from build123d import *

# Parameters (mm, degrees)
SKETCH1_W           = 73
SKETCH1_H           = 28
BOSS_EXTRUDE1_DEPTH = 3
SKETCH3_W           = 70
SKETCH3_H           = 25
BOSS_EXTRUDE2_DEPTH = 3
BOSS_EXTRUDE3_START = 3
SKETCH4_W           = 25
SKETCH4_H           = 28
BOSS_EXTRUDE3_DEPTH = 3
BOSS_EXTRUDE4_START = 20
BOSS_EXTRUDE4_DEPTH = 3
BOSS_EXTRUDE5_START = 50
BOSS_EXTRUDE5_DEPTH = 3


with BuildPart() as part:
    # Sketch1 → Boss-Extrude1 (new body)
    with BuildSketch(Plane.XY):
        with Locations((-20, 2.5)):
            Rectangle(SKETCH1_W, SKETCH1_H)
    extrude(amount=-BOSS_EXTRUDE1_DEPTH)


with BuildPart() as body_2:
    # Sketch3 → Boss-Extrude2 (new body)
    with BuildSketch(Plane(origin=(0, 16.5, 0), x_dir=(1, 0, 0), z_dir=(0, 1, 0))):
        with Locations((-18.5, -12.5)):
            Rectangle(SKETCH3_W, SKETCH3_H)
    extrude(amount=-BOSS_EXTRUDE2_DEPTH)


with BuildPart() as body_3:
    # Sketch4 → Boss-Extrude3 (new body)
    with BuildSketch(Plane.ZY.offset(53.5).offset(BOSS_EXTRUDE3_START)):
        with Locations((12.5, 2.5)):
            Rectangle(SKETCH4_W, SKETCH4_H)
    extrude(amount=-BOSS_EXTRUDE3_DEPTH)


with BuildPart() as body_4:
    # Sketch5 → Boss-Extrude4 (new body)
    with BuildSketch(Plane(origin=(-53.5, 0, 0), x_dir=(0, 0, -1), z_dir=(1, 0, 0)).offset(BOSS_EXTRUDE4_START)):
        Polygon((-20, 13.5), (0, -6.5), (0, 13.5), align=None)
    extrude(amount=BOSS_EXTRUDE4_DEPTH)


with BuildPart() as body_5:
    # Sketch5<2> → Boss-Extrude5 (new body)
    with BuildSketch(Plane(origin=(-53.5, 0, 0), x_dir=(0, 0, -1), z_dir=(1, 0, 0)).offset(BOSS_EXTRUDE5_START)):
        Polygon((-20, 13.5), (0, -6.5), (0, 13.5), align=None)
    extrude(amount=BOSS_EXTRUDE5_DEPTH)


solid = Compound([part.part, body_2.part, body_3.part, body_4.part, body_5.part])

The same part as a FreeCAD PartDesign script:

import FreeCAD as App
import Part
import Sketcher
from FreeCAD import Vector
Q = App.Units.Quantity

doc = App.newDocument("Part")
params = doc.addObject("Spreadsheet::Sheet", "Params")
for row, (alias, value) in enumerate([
    ("sketch1_width", "73 mm"),
    ("sketch1_height", "28 mm"),
    ("pad1_length", "3 mm"),
    ("sketch2_width", "70 mm"),
    ("sketch2_height", "25 mm"),
    ("pad2_length", "3 mm"),
    ("sketch3_width", "28 mm"),
    ("sketch3_height", "25 mm"),
    ("pad3_length", "3 mm"),
    ("sketch4_width", "20 mm"),
    ("pad4_length", "3 mm"),
    ("sketch5_width", "20 mm"),
    ("pad5_length", "3 mm"),
], start=1):
    params.set(f"A{row}", alias)
    params.set(f"B{row}", "=" + value)
    params.setAlias(f"B{row}", alias)

body = doc.addObject("PartDesign::Body", "Body")

# Sketch on XY plane
sketch1 = doc.addObject("Sketcher::SketchObject", "Sketch")
body.addObject(sketch1)
sketch1.AttachmentSupport = (doc.XY_Plane, [""])
sketch1.MapMode = "FlatFace"
sketch1.addGeometry(Part.LineSegment(Vector(-56, 16, 0), Vector(-56, -12, 0)), False)
sketch1.addGeometry(Part.LineSegment(Vector(-56, -12, 0), Vector(16, -12, 0)), False)
sketch1.addGeometry(Part.LineSegment(Vector(16, -12, 0), Vector(16, 16, 0)), False)
sketch1.addGeometry(Part.LineSegment(Vector(16, 16, 0), Vector(-56, 16, 0)), False)
sketch1.addConstraint(Sketcher.Constraint("Coincident", 0, 2, 1, 1))
sketch1.addConstraint(Sketcher.Constraint("Coincident", 1, 2, 2, 1))
sketch1.addConstraint(Sketcher.Constraint("Coincident", 2, 2, 3, 1))
sketch1.addConstraint(Sketcher.Constraint("Coincident", 3, 2, 0, 1))
sketch1.addConstraint(Sketcher.Constraint("Vertical", 0))
sketch1.addConstraint(Sketcher.Constraint("Horizontal", 1))
sketch1.addConstraint(Sketcher.Constraint("Vertical", 2))
sketch1.addConstraint(Sketcher.Constraint("Horizontal", 3))
sketch1.addConstraint(Sketcher.Constraint("DistanceX", 1, 1, 1, 2, Q("73 mm")))
sketch1.addConstraint(Sketcher.Constraint("DistanceY", 0, 2, 0, 1, Q("28 mm")))
sketch1.addConstraint(Sketcher.Constraint("DistanceX", 0, 2, -1, 1, Q("56.5 mm")))
sketch1.addConstraint(Sketcher.Constraint("DistanceY", 0, 2, -1, 1, Q("11.5 mm")))
sketch1.setExpression("Constraints[8]", "Params.sketch1_width")
sketch1.setExpression("Constraints[9]", "Params.sketch1_height")
pad1 = doc.addObject("PartDesign::Pad", "Pad")
body.addObject(pad1)
pad1.Profile = sketch1
pad1.setExpression("Length", "Params.pad1_length")
pad1.Reversed = True
body2 = doc.addObject("PartDesign::Body", "Body001")

# Sketch on XZ plane
sketch2 = doc.addObject("Sketcher::SketchObject", "Sketch001")
body2.addObject(sketch2)
sketch2.AttachmentSupport = (doc.getObject("XZ_Plane001"), [""])
sketch2.MapMode = "FlatFace"
sketch2.AttachmentOffset = App.Placement(Vector(0, 0, -16.5), App.Rotation())
sketch2.addGeometry(Part.LineSegment(Vector(-54, 0, 0), Vector(-54, 25, 0)), False)
sketch2.addGeometry(Part.LineSegment(Vector(-54, 25, 0), Vector(16, 25, 0)), False)
sketch2.addGeometry(Part.LineSegment(Vector(16, 25, 0), Vector(16, 0, 0)), False)
sketch2.addGeometry(Part.LineSegment(Vector(16, 0, 0), Vector(-54, 0, 0)), False)
sketch2.addConstraint(Sketcher.Constraint("Coincident", 0, 2, 1, 1))
sketch2.addConstraint(Sketcher.Constraint("Coincident", 1, 2, 2, 1))
sketch2.addConstraint(Sketcher.Constraint("Coincident", 2, 2, 3, 1))
sketch2.addConstraint(Sketcher.Constraint("Coincident", 3, 2, 0, 1))
sketch2.addConstraint(Sketcher.Constraint("Vertical", 0))
sketch2.addConstraint(Sketcher.Constraint("Horizontal", 1))
sketch2.addConstraint(Sketcher.Constraint("Vertical", 2))
sketch2.addConstraint(Sketcher.Constraint("Horizontal", 3))
sketch2.addConstraint(Sketcher.Constraint("PointOnObject", 2, 2, -1))
sketch2.addConstraint(Sketcher.Constraint("DistanceX", 1, 1, 1, 2, Q("70 mm")))
sketch2.addConstraint(Sketcher.Constraint("DistanceY", 0, 1, 0, 2, Q("25 mm")))
sketch2.addConstraint(Sketcher.Constraint("DistanceX", 0, 2, -1, 1, Q("53.5 mm")))
sketch2.setExpression("Constraints[9]", "Params.sketch2_width")
sketch2.setExpression("Constraints[10]", "Params.sketch2_height")
pad2 = doc.addObject("PartDesign::Pad", "Pad001")
body2.addObject(pad2)
pad2.Profile = sketch2
pad2.setExpression("Length", "Params.pad2_length")
body3 = doc.addObject("PartDesign::Body", "Body002")

# Sketch on YZ plane
sketch3 = doc.addObject("Sketcher::SketchObject", "Sketch002")
body3.addObject(sketch3)
sketch3.AttachmentSupport = (doc.getObject("YZ_Plane002"), [""])
sketch3.MapMode = "FlatFace"
sketch3.AttachmentOffset = App.Placement(Vector(0, 0, -56.5), App.Rotation())
sketch3.addGeometry(Part.LineSegment(Vector(16, 0, 0), Vector(-12, 0, 0)), False)
sketch3.addGeometry(Part.LineSegment(Vector(-12, 0, 0), Vector(-12, 25, 0)), False)
sketch3.addGeometry(Part.LineSegment(Vector(-12, 25, 0), Vector(16, 25, 0)), False)
sketch3.addGeometry(Part.LineSegment(Vector(16, 25, 0), Vector(16, 0, 0)), False)
sketch3.addConstraint(Sketcher.Constraint("Coincident", 0, 2, 1, 1))
sketch3.addConstraint(Sketcher.Constraint("Coincident", 1, 2, 2, 1))
sketch3.addConstraint(Sketcher.Constraint("Coincident", 2, 2, 3, 1))
sketch3.addConstraint(Sketcher.Constraint("Coincident", 3, 2, 0, 1))
sketch3.addConstraint(Sketcher.Constraint("Horizontal", 0))
sketch3.addConstraint(Sketcher.Constraint("Vertical", 1))
sketch3.addConstraint(Sketcher.Constraint("Horizontal", 2))
sketch3.addConstraint(Sketcher.Constraint("Vertical", 3))
sketch3.addConstraint(Sketcher.Constraint("PointOnObject", 0, 2, -1))
sketch3.addConstraint(Sketcher.Constraint("DistanceX", 0, 2, 0, 1, Q("28 mm")))
sketch3.addConstraint(Sketcher.Constraint("DistanceY", 1, 1, 1, 2, Q("25 mm")))
sketch3.addConstraint(Sketcher.Constraint("DistanceX", 0, 2, -1, 1, Q("11.5 mm")))
sketch3.setExpression("Constraints[9]", "Params.sketch3_width")
sketch3.setExpression("Constraints[10]", "Params.sketch3_height")
pad3 = doc.addObject("PartDesign::Pad", "Pad002")
body3.addObject(pad3)
pad3.Profile = sketch3
pad3.setExpression("Length", "Params.pad3_length")
body4 = doc.addObject("PartDesign::Body", "Body003")

# Sketch on YZ plane
sketch4 = doc.addObject("Sketcher::SketchObject", "Sketch003")
body4.addObject(sketch4)
sketch4.AttachmentSupport = (doc.getObject("YZ_Plane003"), [""])
sketch4.MapMode = "FlatFace"
sketch4.AttachmentOffset = App.Placement(Vector(0, 0, -33.5), App.Rotation())
sketch4.addGeometry(Part.LineSegment(Vector(14, 20, 0), Vector(-6, 0, 0)), False)
sketch4.addGeometry(Part.LineSegment(Vector(-6, 0, 0), Vector(14, 0, 0)), False)
sketch4.addGeometry(Part.LineSegment(Vector(14, 0, 0), Vector(14, 20, 0)), False)
sketch4.addConstraint(Sketcher.Constraint("Coincident", 0, 2, 1, 1))
sketch4.addConstraint(Sketcher.Constraint("Coincident", 1, 2, 2, 1))
sketch4.addConstraint(Sketcher.Constraint("Coincident", 2, 2, 0, 1))
sketch4.addConstraint(Sketcher.Constraint("Horizontal", 1))
sketch4.addConstraint(Sketcher.Constraint("Vertical", 2))
sketch4.addConstraint(Sketcher.Constraint("PointOnObject", 0, 2, -1))
sketch4.addConstraint(Sketcher.Constraint("Equal", 1, 2))
sketch4.addConstraint(Sketcher.Constraint("DistanceX", 1, 1, 1, 2, Q("20 mm")))
sketch4.addConstraint(Sketcher.Constraint("DistanceX", 0, 2, -1, 1, Q("6.5 mm")))
sketch4.setExpression("Constraints[7]", "Params.sketch4_width")
pad4 = doc.addObject("PartDesign::Pad", "Pad003")
body4.addObject(pad4)
pad4.Profile = sketch4
pad4.setExpression("Length", "Params.pad4_length")
body5 = doc.addObject("PartDesign::Body", "Body004")

# Sketch on YZ plane
sketch5 = doc.addObject("Sketcher::SketchObject", "Sketch004")
body5.addObject(sketch5)
sketch5.AttachmentSupport = (doc.getObject("YZ_Plane004"), [""])
sketch5.MapMode = "FlatFace"
sketch5.AttachmentOffset = App.Placement(Vector(0, 0, -3.5), App.Rotation())
sketch5.addGeometry(Part.LineSegment(Vector(14, 20, 0), Vector(-6, 0, 0)), False)
sketch5.addGeometry(Part.LineSegment(Vector(-6, 0, 0), Vector(14, 0, 0)), False)
sketch5.addGeometry(Part.LineSegment(Vector(14, 0, 0), Vector(14, 20, 0)), False)
sketch5.addConstraint(Sketcher.Constraint("Coincident", 0, 2, 1, 1))
sketch5.addConstraint(Sketcher.Constraint("Coincident", 1, 2, 2, 1))
sketch5.addConstraint(Sketcher.Constraint("Coincident", 2, 2, 0, 1))
sketch5.addConstraint(Sketcher.Constraint("Horizontal", 1))
sketch5.addConstraint(Sketcher.Constraint("Vertical", 2))
sketch5.addConstraint(Sketcher.Constraint("PointOnObject", 0, 2, -1))
sketch5.addConstraint(Sketcher.Constraint("Equal", 1, 2))
sketch5.addConstraint(Sketcher.Constraint("DistanceX", 1, 1, 1, 2, Q("20 mm")))
sketch5.addConstraint(Sketcher.Constraint("DistanceX", 0, 2, -1, 1, Q("6.5 mm")))
sketch5.setExpression("Constraints[7]", "Params.sketch5_width")
pad5 = doc.addObject("PartDesign::Pad", "Pad004")
body5.addObject(pad5)
pad5.Profile = sketch5
pad5.setExpression("Length", "Params.pad5_length")

doc.recompute()
